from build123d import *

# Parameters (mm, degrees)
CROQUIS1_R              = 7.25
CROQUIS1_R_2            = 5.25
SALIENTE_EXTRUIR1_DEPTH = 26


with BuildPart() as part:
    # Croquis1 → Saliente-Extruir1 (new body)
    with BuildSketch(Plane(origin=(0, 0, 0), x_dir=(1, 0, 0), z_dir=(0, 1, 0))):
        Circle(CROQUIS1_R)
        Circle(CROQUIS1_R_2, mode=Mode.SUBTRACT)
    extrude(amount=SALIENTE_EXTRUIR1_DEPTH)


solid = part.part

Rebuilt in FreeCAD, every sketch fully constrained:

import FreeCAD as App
import Part
import Sketcher
Q = App.Units.Quantity

doc = App.newDocument("Part")
body = doc.addObject("PartDesign::Body", "Body")

sketch1 = body.newObject("Sketcher::SketchObject", "Sketch")
sketch1.AttachmentSupport = (doc.getObject("XZ_Plane"), [""])
sketch1.MapMode = "FlatFace"
sketch1.addGeometry([
    Part.Circle(App.Vector(0, 0, 0), App.Vector(0, 0, 1), 7.25),
    Part.Circle(App.Vector(0, 0, 0), App.Vector(0, 0, 1), 5.25),
], False)
sketch1.addConstraint([
    Sketcher.Constraint("Coincident", 0, 3, -1, 1),
    Sketcher.Constraint("Coincident", 1, 3, -1, 1),
    Sketcher.Constraint("Diameter", 0, Q("14.5 mm")),
    Sketcher.Constraint("Diameter", 1, Q("10.5 mm")),
])
pad1 = body.newObject("PartDesign::Pad", "Pad")
pad1.Profile = sketch1
pad1.Length = 26
pad1.Reversed = True

doc.recompute()
